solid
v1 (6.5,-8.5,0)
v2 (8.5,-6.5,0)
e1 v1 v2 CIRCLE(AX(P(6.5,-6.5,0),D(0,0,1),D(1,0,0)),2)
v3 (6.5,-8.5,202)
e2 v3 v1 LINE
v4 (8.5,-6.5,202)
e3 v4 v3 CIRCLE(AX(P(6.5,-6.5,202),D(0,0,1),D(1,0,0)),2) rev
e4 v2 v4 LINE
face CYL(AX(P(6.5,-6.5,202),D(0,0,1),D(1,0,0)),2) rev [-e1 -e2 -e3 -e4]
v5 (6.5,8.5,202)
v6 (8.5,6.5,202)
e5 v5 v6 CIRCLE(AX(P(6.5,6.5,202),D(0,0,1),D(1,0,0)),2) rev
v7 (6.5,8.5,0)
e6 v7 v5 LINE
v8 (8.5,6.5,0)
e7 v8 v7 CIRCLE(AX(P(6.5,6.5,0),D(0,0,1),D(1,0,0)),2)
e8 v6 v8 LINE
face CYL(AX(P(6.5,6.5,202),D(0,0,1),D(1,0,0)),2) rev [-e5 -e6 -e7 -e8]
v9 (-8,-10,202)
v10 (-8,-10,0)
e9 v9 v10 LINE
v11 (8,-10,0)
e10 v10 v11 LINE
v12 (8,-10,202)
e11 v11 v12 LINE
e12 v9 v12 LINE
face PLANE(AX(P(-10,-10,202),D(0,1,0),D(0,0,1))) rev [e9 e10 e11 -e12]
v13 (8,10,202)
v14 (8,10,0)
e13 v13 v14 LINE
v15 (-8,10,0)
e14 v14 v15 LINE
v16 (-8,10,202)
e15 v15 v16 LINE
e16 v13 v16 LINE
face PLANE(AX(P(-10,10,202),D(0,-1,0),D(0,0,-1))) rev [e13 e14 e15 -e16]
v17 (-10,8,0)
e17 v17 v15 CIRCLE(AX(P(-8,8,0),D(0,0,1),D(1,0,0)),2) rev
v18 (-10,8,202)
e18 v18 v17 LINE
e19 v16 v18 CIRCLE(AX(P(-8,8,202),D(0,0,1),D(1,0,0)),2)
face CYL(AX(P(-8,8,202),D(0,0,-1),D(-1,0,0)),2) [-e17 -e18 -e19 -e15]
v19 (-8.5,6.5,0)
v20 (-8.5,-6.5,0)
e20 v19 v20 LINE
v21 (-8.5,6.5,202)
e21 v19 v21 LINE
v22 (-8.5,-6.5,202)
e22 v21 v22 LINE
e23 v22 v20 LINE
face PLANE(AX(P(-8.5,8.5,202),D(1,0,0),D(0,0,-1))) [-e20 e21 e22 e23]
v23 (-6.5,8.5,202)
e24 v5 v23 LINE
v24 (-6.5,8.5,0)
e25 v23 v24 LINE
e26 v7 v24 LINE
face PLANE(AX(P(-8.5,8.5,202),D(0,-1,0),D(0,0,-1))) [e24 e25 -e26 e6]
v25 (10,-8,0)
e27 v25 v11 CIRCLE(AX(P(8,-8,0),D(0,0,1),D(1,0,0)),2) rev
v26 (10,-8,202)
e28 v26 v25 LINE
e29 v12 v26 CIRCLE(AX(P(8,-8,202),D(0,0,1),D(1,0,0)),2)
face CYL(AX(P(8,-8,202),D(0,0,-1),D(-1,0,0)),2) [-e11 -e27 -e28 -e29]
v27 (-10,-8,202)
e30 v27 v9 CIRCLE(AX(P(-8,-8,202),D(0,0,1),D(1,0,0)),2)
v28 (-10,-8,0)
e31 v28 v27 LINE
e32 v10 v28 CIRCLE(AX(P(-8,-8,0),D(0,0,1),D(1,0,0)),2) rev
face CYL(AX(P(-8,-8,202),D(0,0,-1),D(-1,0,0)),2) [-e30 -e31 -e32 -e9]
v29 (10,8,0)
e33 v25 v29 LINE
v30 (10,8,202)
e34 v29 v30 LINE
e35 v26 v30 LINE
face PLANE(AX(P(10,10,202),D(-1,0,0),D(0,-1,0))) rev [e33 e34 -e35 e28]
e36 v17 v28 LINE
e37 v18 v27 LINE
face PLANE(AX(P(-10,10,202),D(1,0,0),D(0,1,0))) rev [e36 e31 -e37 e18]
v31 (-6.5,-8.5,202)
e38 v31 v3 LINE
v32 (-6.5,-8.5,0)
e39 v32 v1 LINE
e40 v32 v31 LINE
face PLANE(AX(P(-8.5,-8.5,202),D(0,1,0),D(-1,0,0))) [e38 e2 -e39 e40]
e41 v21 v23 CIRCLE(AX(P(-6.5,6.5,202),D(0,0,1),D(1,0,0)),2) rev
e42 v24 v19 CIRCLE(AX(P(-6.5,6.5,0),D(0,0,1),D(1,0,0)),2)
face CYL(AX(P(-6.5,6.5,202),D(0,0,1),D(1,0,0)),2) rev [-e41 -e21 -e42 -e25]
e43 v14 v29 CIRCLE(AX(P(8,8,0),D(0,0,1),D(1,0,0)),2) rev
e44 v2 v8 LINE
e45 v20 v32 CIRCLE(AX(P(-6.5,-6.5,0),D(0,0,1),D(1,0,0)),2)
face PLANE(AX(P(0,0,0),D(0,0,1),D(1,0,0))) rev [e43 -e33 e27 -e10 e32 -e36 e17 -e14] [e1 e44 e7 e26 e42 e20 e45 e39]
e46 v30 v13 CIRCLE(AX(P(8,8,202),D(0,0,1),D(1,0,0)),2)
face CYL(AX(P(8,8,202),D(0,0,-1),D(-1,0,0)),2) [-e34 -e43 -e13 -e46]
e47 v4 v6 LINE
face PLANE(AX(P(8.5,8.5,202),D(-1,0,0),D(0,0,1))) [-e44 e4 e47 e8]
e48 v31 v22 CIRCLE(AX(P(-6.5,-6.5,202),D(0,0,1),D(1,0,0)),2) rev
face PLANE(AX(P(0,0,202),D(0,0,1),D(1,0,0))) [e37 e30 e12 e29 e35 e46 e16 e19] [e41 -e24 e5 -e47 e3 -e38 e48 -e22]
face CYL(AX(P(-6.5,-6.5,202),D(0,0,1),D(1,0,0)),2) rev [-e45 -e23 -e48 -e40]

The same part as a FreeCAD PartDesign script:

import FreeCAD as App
import Part
import Sketcher
from FreeCAD import Vector


def edges_at(feature, points):
    """Names of the edges that pass closest to the given points."""
    edges = feature.Shape.Edges
    near = lambda p: min(range(len(edges)), key=lambda i: edges[i].distToShape(Part.Vertex(*p))[0])
    return sorted({f"Edge{near(p) + 1}" for p in points})

doc = App.newDocument("Part")
body = doc.addObject("PartDesign::Body", "Body")

sketch1 = body.newObject("Sketcher::SketchObject", "Sketch")
sketch1.AttachmentSupport = (doc.getObject("XY_Plane"), [""])
sketch1.MapMode = "FlatFace"
sketch1.addGeometry([
    Part.LineSegment(Vector(-10, 10, 0), Vector(-10, -10, 0)),
    Part.LineSegment(Vector(-10, -10, 0), Vector(10, -10, 0)),
    Part.LineSegment(Vector(10, -10, 0), Vector(10, 10, 0)),
    Part.LineSegment(Vector(10, 10, 0), Vector(-10, 10, 0)),
    Part.LineSegment(Vector(8.5, -8.5, 0), Vector(-8.5, -8.5, 0)),
    Part.LineSegment(Vector(-8.5, -8.5, 0), Vector(-8.5, 8.5, 0)),
    Part.LineSegment(Vector(-8.5, 8.5, 0), Vector(8.5, 8.5, 0)),
    Part.LineSegment(Vector(8.5, 8.5, 0), Vector(8.5, -8.5, 0)),
], False)
sketch1.addConstraint([
    Sketcher.Constraint("Coincident", 0, 2, 1, 1),
    Sketcher.Constraint("Coincident", 1, 2, 2, 1),
    Sketcher.Constraint("Coincident", 2, 2, 3, 1),
    Sketcher.Constraint("Coincident", 3, 2, 0, 1),
    Sketcher.Constraint("Coincident", 4, 2, 5, 1),
    Sketcher.Constraint("Coincident", 5, 2, 6, 1),
    Sketcher.Constraint("Coincident", 6, 2, 7, 1),
    Sketcher.Constraint("Coincident", 7, 2, 4, 1),
    Sketcher.Constraint("Vertical", 0),
    Sketcher.Constraint("Horizontal", 1),
    Sketcher.Constraint("Vertical", 2),
    Sketcher.Constraint("Horizontal", 3),
    Sketcher.Constraint("Horizontal", 4),
    Sketcher.Constraint("Vertical", 5),
    Sketcher.Constraint("Horizontal", 6),
    Sketcher.Constraint("Vertical", 7),
    Sketcher.Constraint("Symmetric", 0, 2, 2, 2, -1, 1),
    Sketcher.Constraint("Symmetric", 4, 2, 6, 2, -1, 1),
    Sketcher.Constraint("Equal", 3, 0),
    Sketcher.Constraint("Equal", 6, 5),
    Sketcher.Constraint("DistanceX", 1, 1, 1, 2, 20.0),
    Sketcher.Constraint("DistanceX", 4, 2, 4, 1, 17.0),
])
pad1 = body.newObject("PartDesign::Pad", "Pad")
pad1.Profile = sketch1
pad1.Length = 202
doc.recompute()

fillet = body.newObject("PartDesign::Fillet", "Fillet")
fillet.Base = (pad1, edges_at(pad1, [
    (-8.5, 8.5, 101),
    (-8.5, -8.5, 101),
    (8.5, -8.5, 101),
    (8.5, 8.5, 101),
    (10, -10, 101),
    (-10, -10, 101),
    (-10, 10, 101),
    (10, 10, 101),
]))
fillet.Radius = 2

doc.recompute()
